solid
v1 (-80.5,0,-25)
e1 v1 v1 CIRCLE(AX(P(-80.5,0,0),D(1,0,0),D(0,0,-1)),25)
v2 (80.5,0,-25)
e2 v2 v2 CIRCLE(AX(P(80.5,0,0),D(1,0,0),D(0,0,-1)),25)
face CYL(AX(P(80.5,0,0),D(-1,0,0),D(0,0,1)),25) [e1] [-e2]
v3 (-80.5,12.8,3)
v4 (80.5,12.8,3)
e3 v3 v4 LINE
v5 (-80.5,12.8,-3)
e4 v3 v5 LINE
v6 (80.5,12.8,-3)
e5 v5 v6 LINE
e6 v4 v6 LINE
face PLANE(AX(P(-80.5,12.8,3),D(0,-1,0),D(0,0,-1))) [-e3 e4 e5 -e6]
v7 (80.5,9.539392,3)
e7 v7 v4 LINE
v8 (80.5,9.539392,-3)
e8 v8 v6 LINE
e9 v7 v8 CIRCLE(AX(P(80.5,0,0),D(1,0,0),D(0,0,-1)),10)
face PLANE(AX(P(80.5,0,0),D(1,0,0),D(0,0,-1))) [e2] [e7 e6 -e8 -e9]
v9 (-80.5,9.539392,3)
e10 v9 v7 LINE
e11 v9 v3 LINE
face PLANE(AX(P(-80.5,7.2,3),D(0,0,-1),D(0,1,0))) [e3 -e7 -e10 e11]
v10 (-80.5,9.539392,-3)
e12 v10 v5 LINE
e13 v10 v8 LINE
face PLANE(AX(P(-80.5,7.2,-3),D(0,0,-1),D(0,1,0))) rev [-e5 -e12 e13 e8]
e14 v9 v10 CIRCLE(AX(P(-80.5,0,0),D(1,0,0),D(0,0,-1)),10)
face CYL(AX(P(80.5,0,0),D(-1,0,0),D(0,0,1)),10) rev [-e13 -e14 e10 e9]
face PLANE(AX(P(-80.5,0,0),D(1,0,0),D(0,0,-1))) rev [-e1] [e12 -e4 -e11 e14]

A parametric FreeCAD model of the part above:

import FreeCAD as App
import Part
import Sketcher
from FreeCAD import Vector


def add_polygon(sketch, points):
    """Adds a closed chain of lines whose ends are joined by coincident constraints."""
    first, n = sketch.GeometryCount, len(points)
    for a, b in zip(points, points[1:] + points[:1]):
        sketch.addGeometry(Part.LineSegment(App.Vector(*a, 0), App.Vector(*b, 0)), False)
    for i in range(n):
        sketch.addConstraint(Sketcher.Constraint("Coincident", first + i, 2, first + (i + 1) % n, 1))

doc = App.newDocument("Part")
body = doc.addObject("PartDesign::Body", "Body")

sketch1 = doc.addObject("Sketcher::SketchObject", "Sketch")
body.addObject(sketch1)
sketch1.AttachmentSupport = (doc.YZ_Plane, [""])
sketch1.MapMode = "FlatFace"
sketch1.addGeometry([
    Part.Circle(Vector(0, 0, 0), Vector(0, 0, 1), 25),
    Part.Circle(Vector(0, 0, 0), Vector(0, 0, 1), 10),
], False)
sketch1.addConstraint([
    Sketcher.Constraint("Coincident", 0, 3, -1, 1),
    Sketcher.Constraint("Coincident", 1, 3, -1, 1),
    Sketcher.Constraint("Diameter", 0, 50.0),
    Sketcher.Constraint("Diameter", 1, 20.0),
])
pad1 = doc.addObject("PartDesign::Pad", "Pad")
body.addObject(pad1)
pad1.Profile = sketch1
pad1.Length = 161
pad1.Midplane = True

sketch2 = doc.addObject("Sketcher::SketchObject", "Sketch001")
body.addObject(sketch2)
sketch2.AttachmentSupport = (doc.YZ_Plane, [""])
sketch2.MapMode = "FlatFace"
add_polygon(sketch2, [(13, 3), (7, 3), (7, -3), (13, -3)])
sketch2.addConstraint([
    Sketcher.Constraint("Horizontal", 0),
    Sketcher.Constraint("Vertical", 1),
    Sketcher.Constraint("Horizontal", 2),
    Sketcher.Constraint("Vertical", 3),
    Sketcher.Constraint("DistanceY", 1, 2, 1, 1, 6.0),
    Sketcher.Constraint("DistanceX", 0, 2, 0, 1, 5.6),
    Sketcher.Constraint("DistanceY", -1, 1, 0, 2, 3.0),
    Sketcher.Constraint("DistanceX", -1, 1, 0, 2, 7.2),
])
pocket1 = doc.addObject("PartDesign::Pocket", "Pocket")
body.addObject(pocket1)
pocket1.Profile = sketch2
pocket1.Length = 161
pocket1.Midplane = True

doc.recompute()
